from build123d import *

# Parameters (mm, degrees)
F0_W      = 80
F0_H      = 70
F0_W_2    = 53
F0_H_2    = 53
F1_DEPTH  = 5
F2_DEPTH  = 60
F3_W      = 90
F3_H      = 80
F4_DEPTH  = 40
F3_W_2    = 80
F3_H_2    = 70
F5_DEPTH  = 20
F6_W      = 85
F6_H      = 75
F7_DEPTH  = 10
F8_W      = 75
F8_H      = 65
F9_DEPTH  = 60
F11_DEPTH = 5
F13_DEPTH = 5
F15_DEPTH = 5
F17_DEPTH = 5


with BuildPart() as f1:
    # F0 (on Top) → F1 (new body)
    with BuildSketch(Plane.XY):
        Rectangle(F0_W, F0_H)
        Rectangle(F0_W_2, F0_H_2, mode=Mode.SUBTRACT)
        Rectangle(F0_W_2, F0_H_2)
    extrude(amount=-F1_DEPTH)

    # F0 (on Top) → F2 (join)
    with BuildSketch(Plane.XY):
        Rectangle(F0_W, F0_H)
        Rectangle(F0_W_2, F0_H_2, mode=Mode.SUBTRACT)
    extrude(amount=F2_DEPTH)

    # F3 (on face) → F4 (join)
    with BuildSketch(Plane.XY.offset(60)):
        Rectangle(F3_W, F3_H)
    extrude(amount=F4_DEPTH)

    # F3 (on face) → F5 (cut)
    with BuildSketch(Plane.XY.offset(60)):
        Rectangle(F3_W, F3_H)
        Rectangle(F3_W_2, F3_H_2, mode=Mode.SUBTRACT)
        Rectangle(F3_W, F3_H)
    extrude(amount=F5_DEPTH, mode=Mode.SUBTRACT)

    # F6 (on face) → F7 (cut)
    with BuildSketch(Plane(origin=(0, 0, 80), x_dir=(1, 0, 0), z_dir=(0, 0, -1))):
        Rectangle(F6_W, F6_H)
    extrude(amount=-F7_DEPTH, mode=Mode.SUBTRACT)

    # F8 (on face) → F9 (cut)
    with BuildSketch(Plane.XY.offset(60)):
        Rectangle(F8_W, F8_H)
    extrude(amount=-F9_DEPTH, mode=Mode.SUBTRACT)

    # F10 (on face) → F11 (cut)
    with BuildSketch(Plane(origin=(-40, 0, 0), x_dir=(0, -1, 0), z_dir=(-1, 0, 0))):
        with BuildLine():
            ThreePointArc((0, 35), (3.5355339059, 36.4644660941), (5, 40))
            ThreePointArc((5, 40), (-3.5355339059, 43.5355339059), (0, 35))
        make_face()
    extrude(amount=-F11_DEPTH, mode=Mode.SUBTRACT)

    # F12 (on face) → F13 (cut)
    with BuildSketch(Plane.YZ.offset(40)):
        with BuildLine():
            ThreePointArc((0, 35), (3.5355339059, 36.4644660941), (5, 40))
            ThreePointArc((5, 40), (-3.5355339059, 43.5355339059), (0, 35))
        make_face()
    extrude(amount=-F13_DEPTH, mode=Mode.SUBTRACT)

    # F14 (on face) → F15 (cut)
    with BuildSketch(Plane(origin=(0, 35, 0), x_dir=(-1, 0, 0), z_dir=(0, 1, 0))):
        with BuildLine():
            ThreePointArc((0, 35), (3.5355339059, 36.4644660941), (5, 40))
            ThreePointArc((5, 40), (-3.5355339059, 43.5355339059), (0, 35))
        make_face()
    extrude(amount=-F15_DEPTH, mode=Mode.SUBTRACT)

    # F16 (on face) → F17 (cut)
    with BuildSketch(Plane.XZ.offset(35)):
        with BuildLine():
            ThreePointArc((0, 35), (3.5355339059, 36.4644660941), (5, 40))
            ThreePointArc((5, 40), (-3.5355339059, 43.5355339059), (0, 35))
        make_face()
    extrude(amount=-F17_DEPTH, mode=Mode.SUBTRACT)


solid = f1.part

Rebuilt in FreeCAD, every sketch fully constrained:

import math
import FreeCAD as App
import Part
import Sketcher
Q = App.Units.Quantity


def add_polygon(sketch, points):
    """Adds a closed chain of lines whose ends are joined by coincident constraints."""
    first, n = sketch.GeometryCount, len(points)
    for a, b in zip(points, points[1:] + points[:1]):
        sketch.addGeometry(Part.LineSegment(App.Vector(*a, 0), App.Vector(*b, 0)), False)
    for i in range(n):
        sketch.addConstraint(Sketcher.Constraint("Coincident", first + i, 2, first + (i + 1) % n, 1))

doc = App.newDocument("Part")
body = doc.addObject("PartDesign::Body", "Body")
body.AllowCompound = True

# Sketch on XY plane
sketch1 = body.newObject("Sketcher::SketchObject", "Sketch")
sketch1.AttachmentSupport = (doc.getObject("XY_Plane"), [""])
sketch1.MapMode = "FlatFace"
add_polygon(sketch1, [(-40, 35), (-40, -35), (40, -35), (40, 35)])  # lines 0-3
sketch1.addConstraint([
    Sketcher.Constraint("Vertical", 0),
    Sketcher.Constraint("Horizontal", 1),
    Sketcher.Constraint("Vertical", 2),
    Sketcher.Constraint("Horizontal", 3),
    Sketcher.Constraint("Symmetric", 0, 2, 2, 2, -1, 1),
    Sketcher.Constraint("DistanceX", 1, 1, 1, 2, Q("80 mm")),
    Sketcher.Constraint("DistanceY", 0, 2, 0, 1, Q("70 mm")),
])
pad1 = body.newObject("PartDesign::Pad", "Pad")
pad1.Profile = sketch1
pad1.Length = 5
pad1.Reversed = True

# Sketch on XY plane
sketch2 = body.newObject("Sketcher::SketchObject", "Sketch001")
sketch2.AttachmentSupport = (doc.getObject("XY_Plane"), [""])
sketch2.MapMode = "FlatFace"
add_polygon(sketch2, [(-40, 35), (-40, -35), (40, -35), (40, 35)])  # lines 0-3
add_polygon(sketch2, [(26, -26), (-26, -26), (-26, 26), (26, 26)])  # lines 4-7
sketch2.addConstraint([
    Sketcher.Constraint("Vertical", 0),
    Sketcher.Constraint("Horizontal", 1),
    Sketcher.Constraint("Vertical", 2),
    Sketcher.Constraint("Horizontal", 3),
    Sketcher.Constraint("Horizontal", 4),
    Sketcher.Constraint("Vertical", 5),
    Sketcher.Constraint("Horizontal", 6),
    Sketcher.Constraint("Vertical", 7),
    Sketcher.Constraint("Symmetric", 0, 2, 2, 2, -1, 1),
    Sketcher.Constraint("Symmetric", 4, 2, 6, 2, -1, 1),
    Sketcher.Constraint("Equal", 6, 5),
    Sketcher.Constraint("DistanceX", 1, 1, 1, 2, Q("80 mm")),
    Sketcher.Constraint("DistanceX", 4, 2, 4, 1, Q("53 mm")),
    Sketcher.Constraint("DistanceY", 0, 2, 0, 1, Q("70 mm")),
])
pad2 = body.newObject("PartDesign::Pad", "Pad001")
pad2.Profile = sketch2
pad2.Length = 60

# Sketch on XY plane
sketch3 = body.newObject("Sketcher::SketchObject", "Sketch002")
sketch3.AttachmentSupport = (doc.getObject("XY_Plane"), [""])
sketch3.MapMode = "FlatFace"
sketch3.AttachmentOffset = App.Placement(App.Vector(0, 0, 60), App.Rotation())
add_polygon(sketch3, [(-45, 40), (-45, -40), (45, -40), (45, 40)])  # lines 0-3
sketch3.addConstraint([
    Sketcher.Constraint("Vertical", 0),
    Sketcher.Constraint("Horizontal", 1),
    Sketcher.Constraint("Vertical", 2),
    Sketcher.Constraint("Horizontal", 3),
    Sketcher.Constraint("Symmetric", 0, 2, 2, 2, -1, 1),
    Sketcher.Constraint("DistanceX", 1, 1, 1, 2, Q("90 mm")),
    Sketcher.Constraint("DistanceY", 0, 2, 0, 1, Q("80 mm")),
])
pad3 = body.newObject("PartDesign::Pad", "Pad002")
pad3.Profile = sketch3
pad3.Length = 40

# Sketch on XY plane
sketch4 = body.newObject("Sketcher::SketchObject", "Sketch003")
sketch4.AttachmentSupport = (doc.getObject("XY_Plane"), [""])
sketch4.MapMode = "FlatFace"
sketch4.AttachmentOffset = App.Placement(App.Vector(0, 0, 60), App.Rotation())
add_polygon(sketch4, [(-45, 40), (-45, -40), (45, -40), (45, 40)])  # lines 0-3
sketch4.addConstraint([
    Sketcher.Constraint("Vertical", 0),
    Sketcher.Constraint("Horizontal", 1),
    Sketcher.Constraint("Vertical", 2),
    Sketcher.Constraint("Horizontal", 3),
    Sketcher.Constraint("Symmetric", 0, 2, 2, 2, -1, 1),
    Sketcher.Constraint("DistanceX", 1, 1, 1, 2, Q("90 mm")),
    Sketcher.Constraint("DistanceY", 0, 2, 0, 1, Q("80 mm")),
])
pocket1 = body.newObject("PartDesign::Pocket", "Pocket")
pocket1.Profile = sketch4
pocket1.Length = 20
pocket1.Reversed = True

# Sketch on XY plane
sketch5 = body.newObject("Sketcher::SketchObject", "Sketch004")
sketch5.AttachmentSupport = (doc.getObject("XY_Plane"), [""])
sketch5.MapMode = "FlatFace"
sketch5.AttachmentOffset = App.Placement(App.Vector(0, 0, 80), App.Rotation())
add_polygon(sketch5, [(-42, -38), (-42, 38), (42, 38), (42, -38)])  # lines 0-3
sketch5.addConstraint([
    Sketcher.Constraint("Vertical", 0),
    Sketcher.Constraint("Horizontal", 1),
    Sketcher.Constraint("Vertical", 2),
    Sketcher.Constraint("Horizontal", 3),
    Sketcher.Constraint("Symmetric", 0, 2, 2, 2, -1, 1),
    Sketcher.Constraint("DistanceX", 1, 1, 1, 2, Q("85 mm")),
    Sketcher.Constraint("DistanceY", 0, 1, 0, 2, Q("75 mm")),
])
pocket2 = body.newObject("PartDesign::Pocket", "Pocket001")
pocket2.Profile = sketch5
pocket2.Length = 10
pocket2.Reversed = True

# Sketch on XY plane
sketch6 = body.newObject("Sketcher::SketchObject", "Sketch005")
sketch6.AttachmentSupport = (doc.getObject("XY_Plane"), [""])
sketch6.MapMode = "FlatFace"
sketch6.AttachmentOffset = App.Placement(App.Vector(0, 0, 60), App.Rotation())
add_polygon(sketch6, [(-38, 32), (-38, -32), (38, -32), (38, 32)])  # lines 0-3
sketch6.addConstraint([
    Sketcher.Constraint("Vertical", 0),
    Sketcher.Constraint("Horizontal", 1),
    Sketcher.Constraint("Vertical", 2),
    Sketcher.Constraint("Horizontal", 3),
    Sketcher.Constraint("Symmetric", 0, 2, 2, 2, -1, 1),
    Sketcher.Constraint("DistanceX", 1, 1, 1, 2, Q("75 mm")),
    Sketcher.Constraint("DistanceY", 0, 2, 0, 1, Q("65 mm")),
])
pocket3 = body.newObject("PartDesign::Pocket", "Pocket002")
pocket3.Profile = sketch6
pocket3.Length = 60

# Sketch on YZ plane
sketch7 = body.newObject("Sketcher::SketchObject", "Sketch006")
sketch7.AttachmentSupport = (doc.getObject("YZ_Plane"), [""])
sketch7.MapMode = "FlatFace"
sketch7.AttachmentOffset = App.Placement(App.Vector(0, 0, -40), App.Rotation())
sketch7.addGeometry([
    Part.ArcOfCircle(Part.Circle(App.Vector(0, 40, 0), App.Vector(0, 0, 1), 5), math.radians(180), math.radians(270)),
    Part.ArcOfCircle(Part.Circle(App.Vector(0, 40, 0), App.Vector(0, 0, 1), 5), math.radians(-90), math.radians(180)),
], False)
sketch7.addConstraint([
    Sketcher.Constraint("Tangent", 0, 1, 1, 2),
    Sketcher.Constraint("Coincident", 1, 1, 0, 2),
    Sketcher.Constraint("PointOnObject", 0, 3, -2),
    Sketcher.Constraint("PointOnObject", 1, 1, -2),
    Sketcher.Constraint("Horizontal", 1, 3, 0, 1),
    Sketcher.Constraint("Radius", 0, Q("5 mm")),
    Sketcher.Constraint("DistanceY", -1, 1, 0, 3, Q("40 mm")),
])
pocket4 = body.newObject("PartDesign::Pocket", "Pocket003")
pocket4.Profile = sketch7
pocket4.Length = 5
pocket4.Reversed = True

# Sketch on YZ plane
sketch8 = body.newObject("Sketcher::SketchObject", "Sketch007")
sketch8.AttachmentSupport = (doc.getObject("YZ_Plane"), [""])
sketch8.MapMode = "FlatFace"
sketch8.AttachmentOffset = App.Placement(App.Vector(0, 0, 40), App.Rotation())
sketch8.addGeometry([
    Part.ArcOfCircle(Part.Circle(App.Vector(0, 40, 0), App.Vector(0, 0, 1), 5), math.radians(-90), math.radians(0)),
    Part.ArcOfCircle(Part.Circle(App.Vector(0, 40, 0), App.Vector(0, 0, 1), 5), math.radians(0), math.radians(270)),
], False)
sketch8.addConstraint([
    Sketcher.Constraint("Tangent", 0, 1, 1, 2),
    Sketcher.Constraint("Coincident", 1, 1, 0, 2),
    Sketcher.Constraint("PointOnObject", 0, 3, -2),
    Sketcher.Constraint("PointOnObject", 0, 1, -2),
    Sketcher.Constraint("Horizontal", 0, 3, 1, 1),
    Sketcher.Constraint("Radius", 0, Q("5 mm")),
    Sketcher.Constraint("DistanceY", -1, 1, 0, 3, Q("40 mm")),
])
pocket5 = body.newObject("PartDesign::Pocket", "Pocket004")
pocket5.Profile = sketch8
pocket5.Length = 5

# Sketch on XZ plane
sketch9 = body.newObject("Sketcher::SketchObject", "Sketch008")
sketch9.AttachmentSupport = (doc.getObject("XZ_Plane"), [""])
sketch9.MapMode = "FlatFace"
sketch9.AttachmentOffset = App.Placement(App.Vector(0, 0, -35), App.Rotation())
sketch9.addGeometry([
    Part.ArcOfCircle(Part.Circle(App.Vector(0, 40, 0), App.Vector(0, 0, 1), 5), math.radians(180), math.radians(270)),
    Part.ArcOfCircle(Part.Circle(App.Vector(0, 40, 0), App.Vector(0, 0, 1), 5), math.radians(-90), math.radians(180)),
], False)
sketch9.addConstraint([
    Sketcher.Constraint("Tangent", 0, 1, 1, 2),
    Sketcher.Constraint("Coincident", 1, 1, 0, 2),
    Sketcher.Constraint("PointOnObject", 0, 3, -2),
    Sketcher.Constraint("PointOnObject", 1, 1, -2),
    Sketcher.Constraint("Horizontal", 1, 3, 0, 1),
    Sketcher.Constraint("Radius", 0, Q("5 mm")),
    Sketcher.Constraint("DistanceY", -1, 1, 0, 3, Q("40 mm")),
])
pocket6 = body.newObject("PartDesign::Pocket", "Pocket005")
pocket6.Profile = sketch9
pocket6.Length = 5
pocket6.Reversed = True

# Sketch on XZ plane
sketch10 = body.newObject("Sketcher::SketchObject", "Sketch009")
sketch10.AttachmentSupport = (doc.getObject("XZ_Plane"), [""])
sketch10.MapMode = "FlatFace"
sketch10.AttachmentOffset = App.Placement(App.Vector(0, 0, 35), App.Rotation())
sketch10.addGeometry([
    Part.ArcOfCircle(Part.Circle(App.Vector(0, 40, 0), App.Vector(0, 0, 1), 5), math.radians(-90), math.radians(0)),
    Part.ArcOfCircle(Part.Circle(App.Vector(0, 40, 0), App.Vector(0, 0, 1), 5), math.radians(0), math.radians(270)),
], False)
sketch10.addConstraint([
    Sketcher.Constraint("Tangent", 0, 1, 1, 2),
    Sketcher.Constraint("Coincident", 1, 1, 0, 2),
    Sketcher.Constraint("PointOnObject", 0, 3, -2),
    Sketcher.Constraint("PointOnObject", 0, 1, -2),
    Sketcher.Constraint("Horizontal", 0, 3, 1, 1),
    Sketcher.Constraint("Radius", 0, Q("5 mm")),
    Sketcher.Constraint("DistanceY", -1, 1, 0, 3, Q("40 mm")),
])
pocket7 = body.newObject("PartDesign::Pocket", "Pocket006")
pocket7.Profile = sketch10
pocket7.Length = 5

doc.recompute()
